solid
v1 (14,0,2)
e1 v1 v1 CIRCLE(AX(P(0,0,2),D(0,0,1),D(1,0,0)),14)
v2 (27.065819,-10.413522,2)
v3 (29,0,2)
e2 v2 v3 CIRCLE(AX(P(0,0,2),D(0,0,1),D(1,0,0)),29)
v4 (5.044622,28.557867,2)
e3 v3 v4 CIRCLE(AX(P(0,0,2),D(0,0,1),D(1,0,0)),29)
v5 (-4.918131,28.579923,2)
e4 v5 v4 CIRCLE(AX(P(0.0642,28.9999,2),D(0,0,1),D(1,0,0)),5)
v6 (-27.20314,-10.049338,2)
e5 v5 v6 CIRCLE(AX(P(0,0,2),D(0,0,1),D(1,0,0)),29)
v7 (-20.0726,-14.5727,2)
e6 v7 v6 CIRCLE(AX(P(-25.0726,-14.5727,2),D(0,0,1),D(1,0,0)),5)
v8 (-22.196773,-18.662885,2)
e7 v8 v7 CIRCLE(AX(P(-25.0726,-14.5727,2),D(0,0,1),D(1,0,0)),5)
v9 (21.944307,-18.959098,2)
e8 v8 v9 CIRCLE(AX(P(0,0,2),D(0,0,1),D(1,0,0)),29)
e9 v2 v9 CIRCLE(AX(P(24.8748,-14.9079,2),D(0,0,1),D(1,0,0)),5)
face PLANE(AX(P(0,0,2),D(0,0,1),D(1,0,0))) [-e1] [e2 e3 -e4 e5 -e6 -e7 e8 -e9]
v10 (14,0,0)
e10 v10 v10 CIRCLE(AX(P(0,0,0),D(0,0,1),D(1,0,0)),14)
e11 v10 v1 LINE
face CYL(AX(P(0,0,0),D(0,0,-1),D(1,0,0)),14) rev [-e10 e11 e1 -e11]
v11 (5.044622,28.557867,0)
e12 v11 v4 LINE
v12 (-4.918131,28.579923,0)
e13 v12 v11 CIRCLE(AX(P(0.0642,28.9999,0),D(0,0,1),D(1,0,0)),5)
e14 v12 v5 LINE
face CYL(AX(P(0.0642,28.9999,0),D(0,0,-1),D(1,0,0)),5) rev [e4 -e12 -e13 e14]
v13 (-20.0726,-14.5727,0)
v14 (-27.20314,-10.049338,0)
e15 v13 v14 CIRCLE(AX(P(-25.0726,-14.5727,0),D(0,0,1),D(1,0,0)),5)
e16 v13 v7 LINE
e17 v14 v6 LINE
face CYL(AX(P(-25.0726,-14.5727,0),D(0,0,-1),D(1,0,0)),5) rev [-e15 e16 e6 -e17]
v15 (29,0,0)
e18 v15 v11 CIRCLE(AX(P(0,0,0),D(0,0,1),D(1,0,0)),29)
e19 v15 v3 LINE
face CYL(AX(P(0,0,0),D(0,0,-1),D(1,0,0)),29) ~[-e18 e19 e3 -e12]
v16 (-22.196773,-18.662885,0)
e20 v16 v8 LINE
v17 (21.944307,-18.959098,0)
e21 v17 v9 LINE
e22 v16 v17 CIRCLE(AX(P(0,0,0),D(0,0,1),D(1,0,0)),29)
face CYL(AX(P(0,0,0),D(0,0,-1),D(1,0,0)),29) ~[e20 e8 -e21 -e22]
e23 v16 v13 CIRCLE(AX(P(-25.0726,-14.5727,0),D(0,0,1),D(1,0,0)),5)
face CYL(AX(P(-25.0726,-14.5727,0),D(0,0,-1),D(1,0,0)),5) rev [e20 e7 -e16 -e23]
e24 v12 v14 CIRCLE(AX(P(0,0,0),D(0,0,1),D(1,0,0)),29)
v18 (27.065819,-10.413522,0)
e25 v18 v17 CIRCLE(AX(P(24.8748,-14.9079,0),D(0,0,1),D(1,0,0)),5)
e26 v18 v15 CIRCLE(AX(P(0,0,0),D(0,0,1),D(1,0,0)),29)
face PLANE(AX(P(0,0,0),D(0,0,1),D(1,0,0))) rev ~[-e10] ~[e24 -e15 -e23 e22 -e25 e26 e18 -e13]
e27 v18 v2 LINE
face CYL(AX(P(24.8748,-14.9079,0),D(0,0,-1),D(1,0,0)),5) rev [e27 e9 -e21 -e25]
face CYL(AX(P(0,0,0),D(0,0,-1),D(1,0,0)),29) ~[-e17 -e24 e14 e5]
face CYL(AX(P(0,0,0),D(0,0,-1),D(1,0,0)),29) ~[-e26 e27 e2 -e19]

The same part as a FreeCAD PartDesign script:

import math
import FreeCAD as App
import Part
import Sketcher

V = App.Vector

doc = App.newDocument("Part")
body = doc.addObject("PartDesign::Body", "Body")

# Sketch on XY plane
sketch1 = doc.addObject("Sketcher::SketchObject", "Sketch")
body.addObject(sketch1)
sketch1.AttachmentSupport = (doc.XY_Plane, [""])
sketch1.MapMode = "FlatFace"
sketch1.addGeometry([
    Part.ArcOfCircle(Part.Circle(V(0, 0, 0), V(0, 0, 1), 29), math.radians(-21), math.radians(80)),  # 0
    Part.ArcOfCircle(Part.Circle(V(0, 29, 0), V(0, 0, 1), 5), math.radians(-175), math.radians(-5)),  # 1
    Part.ArcOfCircle(Part.Circle(V(0, 0, 0), V(0, 0, 1), 29), math.radians(100), math.radians(200)),  # 2
    Part.ArcOfCircle(Part.Circle(V(-25, -15, 0), V(0, 0, 1), 5), math.radians(-55), math.radians(115)),  # 3
    Part.ArcOfCircle(Part.Circle(V(0, 0, 0), V(0, 0, 1), 29), math.radians(-140), math.radians(-41)),  # 4
    Part.ArcOfCircle(Part.Circle(V(25, -15, 0), V(0, 0, 1), 5), math.radians(64), math.radians(234)),  # 5
    Part.Circle(V(0, 0, 0), V(0, 0, 1), 14),  # 6
], False)
sketch1.addConstraint([
    Sketcher.Constraint("Coincident", 0, 2, 1, 2),
    Sketcher.Constraint("Coincident", 1, 1, 2, 1),
    Sketcher.Constraint("Coincident", 2, 2, 3, 2),
    Sketcher.Constraint("Coincident", 3, 1, 4, 1),
    Sketcher.Constraint("Coincident", 4, 2, 5, 2),
    Sketcher.Constraint("Coincident", 5, 1, 0, 1),
    Sketcher.Constraint("Coincident", 0, 3, -1, 1),
    Sketcher.Constraint("Coincident", 2, 3, -1, 1),
    Sketcher.Constraint("Coincident", 4, 3, -1, 1),
    Sketcher.Constraint("Coincident", 6, 3, -1, 1),
    Sketcher.Constraint("Equal", 0, 2),
    Sketcher.Constraint("Equal", 1, 3),
    Sketcher.Constraint("Equal", 2, 4),
    Sketcher.Constraint("Equal", 3, 5),
    Sketcher.Constraint("Diameter", 6, 28.0),
    Sketcher.Constraint("Radius", 0, 29.0),
    Sketcher.Constraint("Radius", 1, 5.0),
    Sketcher.Constraint("DistanceY", -1, 1, 1, 3, 29.0),
    Sketcher.Constraint("DistanceY", -1, 1, 1, 1, 28.58),
    Sketcher.Constraint("DistanceY", 5, 3, -1, 1, 14.908),
    Sketcher.Constraint("DistanceY", 3, 1, -1, 1, 18.663),
    Sketcher.Constraint("DistanceY", 4, 2, -1, 1, 18.959),
    Sketcher.Constraint("DistanceX", 3, 3, -1, 1, 25.0726),
])
pad1 = doc.addObject("PartDesign::Pad", "Pad")
body.addObject(pad1)
pad1.Profile = sketch1
pad1.Length = 2

doc.recompute()
